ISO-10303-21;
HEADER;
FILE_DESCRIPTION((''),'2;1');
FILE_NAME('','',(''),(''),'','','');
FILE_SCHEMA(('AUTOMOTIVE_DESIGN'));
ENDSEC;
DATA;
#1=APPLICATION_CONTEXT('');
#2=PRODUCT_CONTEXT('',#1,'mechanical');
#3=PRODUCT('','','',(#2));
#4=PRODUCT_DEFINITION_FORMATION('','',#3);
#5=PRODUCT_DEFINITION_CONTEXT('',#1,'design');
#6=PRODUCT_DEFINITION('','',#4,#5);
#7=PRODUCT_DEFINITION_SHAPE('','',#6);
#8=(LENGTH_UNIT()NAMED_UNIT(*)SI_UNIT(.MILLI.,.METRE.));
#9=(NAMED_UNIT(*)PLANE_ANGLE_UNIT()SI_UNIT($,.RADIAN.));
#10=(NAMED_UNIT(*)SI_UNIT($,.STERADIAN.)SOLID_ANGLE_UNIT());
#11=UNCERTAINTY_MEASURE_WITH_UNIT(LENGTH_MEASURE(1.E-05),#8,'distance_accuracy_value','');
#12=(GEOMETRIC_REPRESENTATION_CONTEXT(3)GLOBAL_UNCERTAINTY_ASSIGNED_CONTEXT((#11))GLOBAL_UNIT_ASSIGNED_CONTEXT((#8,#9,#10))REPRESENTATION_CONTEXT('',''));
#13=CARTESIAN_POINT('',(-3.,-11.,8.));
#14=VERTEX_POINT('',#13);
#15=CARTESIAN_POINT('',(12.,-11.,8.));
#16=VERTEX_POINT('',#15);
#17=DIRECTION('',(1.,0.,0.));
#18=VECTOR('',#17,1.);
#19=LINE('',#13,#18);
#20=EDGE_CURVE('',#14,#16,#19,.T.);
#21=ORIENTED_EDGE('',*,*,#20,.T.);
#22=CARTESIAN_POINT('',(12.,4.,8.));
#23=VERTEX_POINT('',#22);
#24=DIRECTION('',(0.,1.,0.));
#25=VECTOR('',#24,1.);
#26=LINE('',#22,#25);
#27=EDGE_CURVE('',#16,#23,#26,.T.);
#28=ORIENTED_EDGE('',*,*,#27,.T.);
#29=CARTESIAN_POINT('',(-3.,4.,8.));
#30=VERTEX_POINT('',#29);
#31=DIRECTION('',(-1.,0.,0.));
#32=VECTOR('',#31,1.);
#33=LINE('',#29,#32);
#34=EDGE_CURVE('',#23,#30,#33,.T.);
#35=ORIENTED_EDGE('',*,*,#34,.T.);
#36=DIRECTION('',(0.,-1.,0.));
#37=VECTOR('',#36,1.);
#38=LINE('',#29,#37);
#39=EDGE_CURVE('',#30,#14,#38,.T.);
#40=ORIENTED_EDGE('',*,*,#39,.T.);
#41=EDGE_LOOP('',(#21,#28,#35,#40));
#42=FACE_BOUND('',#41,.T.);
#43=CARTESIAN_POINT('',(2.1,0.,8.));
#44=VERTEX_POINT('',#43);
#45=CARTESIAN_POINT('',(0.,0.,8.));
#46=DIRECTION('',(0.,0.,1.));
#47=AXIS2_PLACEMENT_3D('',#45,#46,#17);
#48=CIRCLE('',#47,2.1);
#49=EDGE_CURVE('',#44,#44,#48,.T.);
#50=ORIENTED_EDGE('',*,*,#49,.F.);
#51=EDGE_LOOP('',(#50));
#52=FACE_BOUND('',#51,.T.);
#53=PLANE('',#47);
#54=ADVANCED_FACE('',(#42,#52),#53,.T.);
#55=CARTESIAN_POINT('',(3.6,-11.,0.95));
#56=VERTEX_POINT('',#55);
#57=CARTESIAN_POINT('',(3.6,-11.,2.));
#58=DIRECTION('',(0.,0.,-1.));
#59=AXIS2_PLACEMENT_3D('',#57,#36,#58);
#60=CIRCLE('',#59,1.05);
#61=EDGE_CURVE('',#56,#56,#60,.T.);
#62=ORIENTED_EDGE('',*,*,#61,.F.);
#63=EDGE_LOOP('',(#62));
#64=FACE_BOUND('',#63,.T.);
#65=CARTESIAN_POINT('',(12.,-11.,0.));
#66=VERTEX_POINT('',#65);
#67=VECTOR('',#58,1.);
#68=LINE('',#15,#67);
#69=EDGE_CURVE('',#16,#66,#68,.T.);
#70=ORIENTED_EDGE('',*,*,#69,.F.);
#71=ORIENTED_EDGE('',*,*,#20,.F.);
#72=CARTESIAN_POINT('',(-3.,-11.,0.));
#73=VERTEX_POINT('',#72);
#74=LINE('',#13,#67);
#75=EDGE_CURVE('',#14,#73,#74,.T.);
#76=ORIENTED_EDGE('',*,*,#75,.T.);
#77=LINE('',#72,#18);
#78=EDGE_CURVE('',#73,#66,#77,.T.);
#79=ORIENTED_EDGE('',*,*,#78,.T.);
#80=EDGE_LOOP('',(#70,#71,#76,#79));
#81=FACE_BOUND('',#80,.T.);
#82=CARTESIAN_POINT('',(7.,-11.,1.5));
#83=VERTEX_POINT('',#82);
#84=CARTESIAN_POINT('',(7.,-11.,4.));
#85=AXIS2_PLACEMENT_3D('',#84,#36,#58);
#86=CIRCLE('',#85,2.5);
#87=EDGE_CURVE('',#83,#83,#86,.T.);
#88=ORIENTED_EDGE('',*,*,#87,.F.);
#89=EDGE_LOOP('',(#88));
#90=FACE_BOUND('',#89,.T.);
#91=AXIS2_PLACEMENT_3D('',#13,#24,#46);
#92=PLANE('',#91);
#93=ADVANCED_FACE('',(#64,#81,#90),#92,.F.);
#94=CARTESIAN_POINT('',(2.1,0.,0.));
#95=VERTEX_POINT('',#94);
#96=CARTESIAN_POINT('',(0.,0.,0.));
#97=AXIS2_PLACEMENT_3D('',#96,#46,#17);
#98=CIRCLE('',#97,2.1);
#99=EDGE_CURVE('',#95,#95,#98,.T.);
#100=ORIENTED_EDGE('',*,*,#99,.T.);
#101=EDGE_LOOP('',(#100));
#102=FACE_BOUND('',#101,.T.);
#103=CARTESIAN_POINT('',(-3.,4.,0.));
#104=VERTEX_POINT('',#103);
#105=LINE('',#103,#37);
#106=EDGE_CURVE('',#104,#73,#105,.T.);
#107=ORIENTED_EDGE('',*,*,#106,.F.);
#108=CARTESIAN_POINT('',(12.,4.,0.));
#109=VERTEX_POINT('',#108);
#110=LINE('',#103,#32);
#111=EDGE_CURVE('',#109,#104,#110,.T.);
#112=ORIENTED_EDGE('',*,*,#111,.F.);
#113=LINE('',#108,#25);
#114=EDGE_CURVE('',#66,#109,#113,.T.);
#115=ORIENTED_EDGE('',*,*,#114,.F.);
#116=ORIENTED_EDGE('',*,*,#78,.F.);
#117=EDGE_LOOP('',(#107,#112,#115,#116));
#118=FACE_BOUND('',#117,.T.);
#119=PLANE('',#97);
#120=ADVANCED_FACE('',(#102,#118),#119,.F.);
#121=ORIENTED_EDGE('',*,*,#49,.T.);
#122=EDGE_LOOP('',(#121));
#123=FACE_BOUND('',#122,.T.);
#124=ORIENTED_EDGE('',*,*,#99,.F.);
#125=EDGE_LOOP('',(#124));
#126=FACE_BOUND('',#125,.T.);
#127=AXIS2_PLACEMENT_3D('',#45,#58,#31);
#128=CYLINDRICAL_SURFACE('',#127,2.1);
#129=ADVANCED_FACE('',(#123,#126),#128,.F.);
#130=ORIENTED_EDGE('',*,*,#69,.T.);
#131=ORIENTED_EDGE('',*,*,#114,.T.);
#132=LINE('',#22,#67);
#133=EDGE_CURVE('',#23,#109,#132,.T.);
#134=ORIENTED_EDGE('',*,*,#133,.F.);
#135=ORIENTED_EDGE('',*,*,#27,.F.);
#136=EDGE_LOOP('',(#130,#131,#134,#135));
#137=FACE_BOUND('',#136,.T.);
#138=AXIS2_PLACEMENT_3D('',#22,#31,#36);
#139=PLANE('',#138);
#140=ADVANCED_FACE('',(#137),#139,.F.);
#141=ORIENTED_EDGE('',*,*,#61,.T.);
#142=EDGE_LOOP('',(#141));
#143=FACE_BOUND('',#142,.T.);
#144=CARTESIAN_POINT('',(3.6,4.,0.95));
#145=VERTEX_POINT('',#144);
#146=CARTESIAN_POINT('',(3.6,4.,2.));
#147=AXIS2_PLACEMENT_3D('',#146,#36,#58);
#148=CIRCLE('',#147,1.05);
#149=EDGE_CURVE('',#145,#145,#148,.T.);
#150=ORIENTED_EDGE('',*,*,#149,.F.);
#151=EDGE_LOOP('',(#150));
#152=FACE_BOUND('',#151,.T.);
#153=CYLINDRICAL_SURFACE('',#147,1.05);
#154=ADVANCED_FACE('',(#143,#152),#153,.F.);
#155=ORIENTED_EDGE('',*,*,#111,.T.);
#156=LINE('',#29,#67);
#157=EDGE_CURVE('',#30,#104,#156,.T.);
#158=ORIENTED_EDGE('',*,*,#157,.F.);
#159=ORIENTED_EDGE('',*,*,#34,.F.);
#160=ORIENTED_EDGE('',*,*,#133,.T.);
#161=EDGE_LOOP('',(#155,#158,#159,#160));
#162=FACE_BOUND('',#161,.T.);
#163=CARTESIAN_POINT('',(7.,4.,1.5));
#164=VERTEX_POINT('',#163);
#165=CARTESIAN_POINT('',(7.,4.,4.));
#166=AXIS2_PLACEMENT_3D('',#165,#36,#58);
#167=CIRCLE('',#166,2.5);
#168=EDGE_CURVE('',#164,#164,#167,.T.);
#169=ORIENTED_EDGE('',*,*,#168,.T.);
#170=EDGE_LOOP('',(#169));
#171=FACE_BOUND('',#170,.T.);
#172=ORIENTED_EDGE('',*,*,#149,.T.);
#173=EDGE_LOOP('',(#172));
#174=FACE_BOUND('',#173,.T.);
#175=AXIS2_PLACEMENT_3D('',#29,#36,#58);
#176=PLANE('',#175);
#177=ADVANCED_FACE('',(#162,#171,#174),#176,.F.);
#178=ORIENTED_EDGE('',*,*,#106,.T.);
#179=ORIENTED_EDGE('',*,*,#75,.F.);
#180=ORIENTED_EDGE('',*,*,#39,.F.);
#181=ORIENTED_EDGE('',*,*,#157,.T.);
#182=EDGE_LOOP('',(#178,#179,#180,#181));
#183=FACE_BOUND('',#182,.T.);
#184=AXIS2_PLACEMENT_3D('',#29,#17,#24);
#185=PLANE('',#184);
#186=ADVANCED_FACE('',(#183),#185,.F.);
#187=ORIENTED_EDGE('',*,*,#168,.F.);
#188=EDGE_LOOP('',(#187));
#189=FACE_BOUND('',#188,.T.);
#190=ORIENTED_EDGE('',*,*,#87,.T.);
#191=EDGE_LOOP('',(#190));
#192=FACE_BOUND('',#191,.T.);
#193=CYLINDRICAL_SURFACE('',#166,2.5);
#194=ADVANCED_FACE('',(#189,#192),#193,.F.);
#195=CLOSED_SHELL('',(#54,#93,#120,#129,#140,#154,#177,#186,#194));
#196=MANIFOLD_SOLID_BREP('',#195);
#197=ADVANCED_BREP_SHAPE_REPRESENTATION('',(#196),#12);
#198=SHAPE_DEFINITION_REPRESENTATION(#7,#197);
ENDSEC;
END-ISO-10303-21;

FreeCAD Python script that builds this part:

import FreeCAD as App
import Part
import Sketcher

doc = App.newDocument("Part")
params = doc.addObject("Spreadsheet::Sheet", "Params")
for row, (alias, value) in enumerate([
    ("sketch1_diameter", "4.2 mm"),
    ("sketch1_width", "15 mm"),
    ("pad1_length", "8 mm"),
    ("sketch2_diameter", "5 mm"),
    ("sketch3_diameter", "2.1 mm"),
], start=1):
    params.set(f"A{row}", alias)
    params.set(f"B{row}", "=" + value)
    params.setAlias(f"B{row}", alias)

body = doc.addObject("PartDesign::Body", "Body")

# Sketch on XY plane
sketch1 = body.newObject("Sketcher::SketchObject", "Sketch")
sketch1.AttachmentSupport = (doc.getObject("XY_Plane"), [""])
sketch1.MapMode = "FlatFace"
sketch1.addGeometry([
    Part.LineSegment(App.Vector(-3, 4, 0), App.Vector(-3, -11, 0)),  # 0
    Part.LineSegment(App.Vector(-3, -11, 0), App.Vector(12, -11, 0)),  # 1
    Part.LineSegment(App.Vector(12, -11, 0), App.Vector(12, 4, 0)),  # 2
    Part.LineSegment(App.Vector(12, 4, 0), App.Vector(-3, 4, 0)),  # 3
    Part.Circle(App.Vector(0, 0, 0), App.Vector(0, 0, 1), 2.1),  # 4
], False)
sketch1.addConstraint([
    Sketcher.Constraint("Coincident", 0, 2, 1, 1),
    Sketcher.Constraint("Coincident", 1, 2, 2, 1),
    Sketcher.Constraint("Coincident", 2, 2, 3, 1),
    Sketcher.Constraint("Coincident", 3, 2, 0, 1),
    Sketcher.Constraint("Vertical", 0),
    Sketcher.Constraint("Horizontal", 1),
    Sketcher.Constraint("Vertical", 2),
    Sketcher.Constraint("Horizontal", 3),
    Sketcher.Constraint("Coincident", 4, 3, -1, 1),
    Sketcher.Constraint("Equal", 3, 0),
    Sketcher.Constraint("Diameter", 4, 4.2),
    Sketcher.Constraint("DistanceX", 1, 1, 1, 2, 15.0),
    Sketcher.Constraint("DistanceX", 0, 2, -1, 1, 3.0),
    Sketcher.Constraint("DistanceY", 0, 2, -1, 1, 11.0),
])
sketch1.setExpression("Constraints[10]", "Params.sketch1_diameter")
sketch1.setExpression("Constraints[11]", "Params.sketch1_width")
pad1 = body.newObject("PartDesign::Pad", "Pad")
pad1.Profile = sketch1
pad1.setExpression("Length", "Params.pad1_length")

# Sketch on XZ plane
sketch2 = body.newObject("Sketcher::SketchObject", "Sketch001")
sketch2.AttachmentSupport = (doc.getObject("XZ_Plane"), [""])
sketch2.MapMode = "FlatFace"
sketch2.AttachmentOffset = App.Placement(App.Vector(0, 0, 11), App.Rotation())
sketch2.addGeometry(Part.Circle(App.Vector(7, 4, 0), App.Vector(0, 0, 1), 2.5), False)
sketch2.addConstraint([
    Sketcher.Constraint("Diameter", 0, 5.0),
    Sketcher.Constraint("DistanceX", -1, 1, 0, 3, 7.0),
    Sketcher.Constraint("DistanceY", -1, 1, 0, 3, 4.0),
])
sketch2.setExpression("Constraints[0]", "Params.sketch2_diameter")
pocket1 = body.newObject("PartDesign::Pocket", "Pocket")
pocket1.Profile = sketch2
pocket1.Type = "ThroughAll"

# Sketch on XZ plane
sketch3 = body.newObject("Sketcher::SketchObject", "Sketch002")
sketch3.AttachmentSupport = (doc.getObject("XZ_Plane"), [""])
sketch3.MapMode = "FlatFace"
sketch3.AttachmentOffset = App.Placement(App.Vector(0, 0, 11), App.Rotation())
sketch3.addGeometry(Part.Circle(App.Vector(3.6, 2, 0), App.Vector(0, 0, 1), 1.05), False)
sketch3.addConstraint([
    Sketcher.Constraint("Diameter", 0, 2.1),
    Sketcher.Constraint("DistanceY", -1, 1, 0, 3, 2.0),
    Sketcher.Constraint("DistanceX", -1, 1, 0, 3, 3.6),
])
sketch3.setExpression("Constraints[0]", "Params.sketch3_diameter")
pocket2 = body.newObject("PartDesign::Pocket", "Pocket001")
pocket2.Profile = sketch3
pocket2.Type = "ThroughAll"

doc.recompute()
